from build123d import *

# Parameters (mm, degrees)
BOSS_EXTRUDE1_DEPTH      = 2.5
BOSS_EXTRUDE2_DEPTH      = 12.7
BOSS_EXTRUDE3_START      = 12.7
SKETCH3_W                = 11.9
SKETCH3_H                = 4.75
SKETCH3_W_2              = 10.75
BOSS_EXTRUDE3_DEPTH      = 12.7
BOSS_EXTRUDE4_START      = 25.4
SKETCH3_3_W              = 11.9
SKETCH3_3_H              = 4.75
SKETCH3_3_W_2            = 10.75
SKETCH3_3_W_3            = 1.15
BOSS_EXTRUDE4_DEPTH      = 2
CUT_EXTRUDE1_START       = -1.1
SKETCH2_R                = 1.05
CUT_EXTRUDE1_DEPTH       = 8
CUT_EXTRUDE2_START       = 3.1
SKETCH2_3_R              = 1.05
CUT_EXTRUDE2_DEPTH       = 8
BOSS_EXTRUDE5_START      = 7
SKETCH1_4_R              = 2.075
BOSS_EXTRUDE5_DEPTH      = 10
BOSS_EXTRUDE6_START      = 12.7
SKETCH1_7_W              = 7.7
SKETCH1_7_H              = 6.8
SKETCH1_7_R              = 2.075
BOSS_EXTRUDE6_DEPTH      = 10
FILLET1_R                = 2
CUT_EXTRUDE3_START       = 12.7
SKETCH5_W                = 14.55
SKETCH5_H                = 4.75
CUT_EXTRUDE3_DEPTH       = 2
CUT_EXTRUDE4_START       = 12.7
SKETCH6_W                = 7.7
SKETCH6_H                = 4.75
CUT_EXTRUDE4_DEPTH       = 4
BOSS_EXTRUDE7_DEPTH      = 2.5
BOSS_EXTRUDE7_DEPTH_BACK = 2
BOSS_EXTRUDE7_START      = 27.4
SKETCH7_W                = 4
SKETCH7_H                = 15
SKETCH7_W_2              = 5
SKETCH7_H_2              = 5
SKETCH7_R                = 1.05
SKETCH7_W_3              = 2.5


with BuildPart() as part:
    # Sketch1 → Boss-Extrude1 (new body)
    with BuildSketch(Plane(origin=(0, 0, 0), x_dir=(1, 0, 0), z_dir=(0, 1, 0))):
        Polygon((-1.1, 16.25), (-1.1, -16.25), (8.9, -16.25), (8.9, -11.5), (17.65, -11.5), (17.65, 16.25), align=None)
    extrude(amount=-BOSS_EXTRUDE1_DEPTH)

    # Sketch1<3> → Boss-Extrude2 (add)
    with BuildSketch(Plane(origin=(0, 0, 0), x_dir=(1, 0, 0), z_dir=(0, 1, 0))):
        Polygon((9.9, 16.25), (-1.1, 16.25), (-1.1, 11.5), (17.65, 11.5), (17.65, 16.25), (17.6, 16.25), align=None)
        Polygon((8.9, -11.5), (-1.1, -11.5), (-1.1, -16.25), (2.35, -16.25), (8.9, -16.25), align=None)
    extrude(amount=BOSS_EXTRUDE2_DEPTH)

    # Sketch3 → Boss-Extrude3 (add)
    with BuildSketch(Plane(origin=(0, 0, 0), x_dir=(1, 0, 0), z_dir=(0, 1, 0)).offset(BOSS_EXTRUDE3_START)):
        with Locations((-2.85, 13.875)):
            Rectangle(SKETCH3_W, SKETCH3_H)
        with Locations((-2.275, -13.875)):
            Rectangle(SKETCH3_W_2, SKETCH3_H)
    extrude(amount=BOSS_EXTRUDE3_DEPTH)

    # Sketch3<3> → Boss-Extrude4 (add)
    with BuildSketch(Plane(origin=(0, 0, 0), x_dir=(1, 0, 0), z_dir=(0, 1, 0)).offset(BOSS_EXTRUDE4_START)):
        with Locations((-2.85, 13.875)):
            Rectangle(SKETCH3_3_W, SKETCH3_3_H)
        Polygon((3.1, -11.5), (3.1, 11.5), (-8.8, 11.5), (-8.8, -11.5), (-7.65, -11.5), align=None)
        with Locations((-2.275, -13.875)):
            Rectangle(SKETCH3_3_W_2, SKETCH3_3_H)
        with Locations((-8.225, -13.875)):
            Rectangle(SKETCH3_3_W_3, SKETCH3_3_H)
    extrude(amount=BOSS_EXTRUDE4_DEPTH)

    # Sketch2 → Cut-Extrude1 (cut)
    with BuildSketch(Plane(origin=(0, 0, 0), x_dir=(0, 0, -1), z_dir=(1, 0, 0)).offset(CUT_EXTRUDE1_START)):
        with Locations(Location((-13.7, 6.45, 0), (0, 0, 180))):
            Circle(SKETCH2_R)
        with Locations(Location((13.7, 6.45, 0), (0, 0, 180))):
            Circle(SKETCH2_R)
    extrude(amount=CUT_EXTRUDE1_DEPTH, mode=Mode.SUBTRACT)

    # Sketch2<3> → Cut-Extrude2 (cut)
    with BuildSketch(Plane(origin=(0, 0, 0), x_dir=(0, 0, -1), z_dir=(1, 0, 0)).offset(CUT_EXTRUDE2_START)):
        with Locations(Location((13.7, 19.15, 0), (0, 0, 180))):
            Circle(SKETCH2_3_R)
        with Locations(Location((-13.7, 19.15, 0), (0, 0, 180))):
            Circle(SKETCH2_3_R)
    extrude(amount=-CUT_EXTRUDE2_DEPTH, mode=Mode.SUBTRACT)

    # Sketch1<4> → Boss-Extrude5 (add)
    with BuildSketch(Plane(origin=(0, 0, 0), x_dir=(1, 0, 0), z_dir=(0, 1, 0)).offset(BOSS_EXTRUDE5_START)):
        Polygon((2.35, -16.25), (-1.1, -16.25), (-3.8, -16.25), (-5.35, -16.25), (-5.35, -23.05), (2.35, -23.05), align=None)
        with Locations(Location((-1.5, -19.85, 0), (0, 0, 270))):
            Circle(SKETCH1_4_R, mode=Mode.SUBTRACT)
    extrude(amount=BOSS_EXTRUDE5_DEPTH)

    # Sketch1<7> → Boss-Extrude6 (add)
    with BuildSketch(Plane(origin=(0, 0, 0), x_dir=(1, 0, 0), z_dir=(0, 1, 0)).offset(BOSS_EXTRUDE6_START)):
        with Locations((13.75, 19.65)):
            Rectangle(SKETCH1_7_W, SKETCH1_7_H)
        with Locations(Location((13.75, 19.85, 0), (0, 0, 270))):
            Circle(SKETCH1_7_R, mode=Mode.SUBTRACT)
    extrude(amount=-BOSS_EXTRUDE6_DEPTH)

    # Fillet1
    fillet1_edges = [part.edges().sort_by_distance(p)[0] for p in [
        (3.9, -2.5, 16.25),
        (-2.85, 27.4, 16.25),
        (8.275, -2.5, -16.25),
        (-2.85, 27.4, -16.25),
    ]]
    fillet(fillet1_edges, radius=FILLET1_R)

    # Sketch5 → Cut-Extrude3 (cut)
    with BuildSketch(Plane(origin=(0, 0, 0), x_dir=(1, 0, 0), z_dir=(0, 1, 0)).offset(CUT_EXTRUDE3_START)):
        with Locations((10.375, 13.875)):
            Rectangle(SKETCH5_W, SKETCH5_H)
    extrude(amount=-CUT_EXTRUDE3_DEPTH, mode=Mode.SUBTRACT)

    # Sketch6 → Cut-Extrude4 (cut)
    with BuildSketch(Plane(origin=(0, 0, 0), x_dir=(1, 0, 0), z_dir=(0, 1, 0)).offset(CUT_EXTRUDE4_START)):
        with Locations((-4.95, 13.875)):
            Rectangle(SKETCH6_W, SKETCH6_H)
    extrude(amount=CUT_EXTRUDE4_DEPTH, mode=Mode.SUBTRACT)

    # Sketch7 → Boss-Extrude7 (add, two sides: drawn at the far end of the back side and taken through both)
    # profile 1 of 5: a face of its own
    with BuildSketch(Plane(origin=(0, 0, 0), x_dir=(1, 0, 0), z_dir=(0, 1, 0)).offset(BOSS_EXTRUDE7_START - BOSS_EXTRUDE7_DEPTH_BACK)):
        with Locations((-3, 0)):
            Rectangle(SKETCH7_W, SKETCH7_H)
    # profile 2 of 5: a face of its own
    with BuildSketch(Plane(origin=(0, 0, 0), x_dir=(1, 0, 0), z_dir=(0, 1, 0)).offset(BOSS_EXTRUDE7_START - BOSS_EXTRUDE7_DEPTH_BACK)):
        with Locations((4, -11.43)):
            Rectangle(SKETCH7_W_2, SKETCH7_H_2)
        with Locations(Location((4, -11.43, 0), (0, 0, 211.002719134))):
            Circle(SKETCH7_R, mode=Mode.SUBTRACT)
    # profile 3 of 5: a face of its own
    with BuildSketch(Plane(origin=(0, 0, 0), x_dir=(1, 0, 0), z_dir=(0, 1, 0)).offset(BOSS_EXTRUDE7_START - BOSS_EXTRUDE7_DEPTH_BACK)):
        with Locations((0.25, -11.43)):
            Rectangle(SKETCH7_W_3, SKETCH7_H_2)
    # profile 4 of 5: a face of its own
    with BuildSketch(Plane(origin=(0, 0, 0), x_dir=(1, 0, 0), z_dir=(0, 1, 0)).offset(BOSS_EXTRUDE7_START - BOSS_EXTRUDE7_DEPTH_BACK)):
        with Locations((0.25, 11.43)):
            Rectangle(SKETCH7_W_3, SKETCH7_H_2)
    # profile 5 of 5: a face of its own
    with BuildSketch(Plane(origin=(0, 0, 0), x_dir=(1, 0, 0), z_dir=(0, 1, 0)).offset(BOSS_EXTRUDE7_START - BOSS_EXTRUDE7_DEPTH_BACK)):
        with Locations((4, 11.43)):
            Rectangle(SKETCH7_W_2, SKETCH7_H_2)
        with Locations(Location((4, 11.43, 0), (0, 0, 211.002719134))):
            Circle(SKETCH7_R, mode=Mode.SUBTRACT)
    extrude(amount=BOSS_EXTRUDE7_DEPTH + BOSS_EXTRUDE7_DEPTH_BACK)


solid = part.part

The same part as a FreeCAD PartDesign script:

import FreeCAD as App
import Part
import Sketcher


def edges_at(feature, points):
    """Names of the edges that pass closest to the given points."""
    edges = feature.Shape.Edges
    near = lambda p: min(range(len(edges)), key=lambda i: edges[i].distToShape(Part.Vertex(*p))[0])
    return sorted({f"Edge{near(p) + 1}" for p in points})

doc = App.newDocument("Part")
params = doc.addObject("Spreadsheet::Sheet", "Params")
for row, (alias, value) in enumerate([
    ("sketch1_width", "10 mm"),
    ("sketch1_height", "32.5 mm"),
    ("sketch1_width2", "8.75 mm"),
    ("sketch1_height2", "4.75 mm"),
    ("pad1_length", "2.5 mm"),
    ("sketch2_width", "10 mm"),
    ("sketch2_width2", "18.75 mm"),
    ("sketch2_height", "4.75 mm"),
    ("pad2_length", "12.7 mm"),
    ("sketch3_width", "11.9 mm"),
    ("sketch3_width2", "10.75 mm"),
    ("sketch3_height", "4.75 mm"),
    ("pad3_length", "12.7 mm"),
    ("sketch4_width", "11.9 mm"),
    ("sketch4_height", "32.5 mm"),
    ("pad4_length", "2 mm"),
    ("sketch5_diameter", "2.1 mm"),
    ("pocket1_length", "8 mm"),
    ("sketch6_diameter", "2.1 mm"),
    ("pocket2_length", "8 mm"),
    ("sketch7_diameter", "4.15 mm"),
    ("sketch7_width", "7.7 mm"),
    ("sketch7_height", "6.8 mm"),
    ("pad5_length", "10 mm"),
    ("sketch8_diameter", "4.15 mm"),
    ("sketch8_width", "7.7 mm"),
    ("sketch8_height", "6.8 mm"),
    ("pad6_length", "10 mm"),
    ("fillet_radius", "2 mm"),
    ("sketch9_width", "14.55 mm"),
    ("sketch9_height", "4.75 mm"),
    ("pocket3_length", "2 mm"),
    ("sketch10_width", "7.7 mm"),
    ("sketch10_height", "4.75 mm"),
    ("pocket4_length", "4 mm"),
    ("sketch11_diameter", "2.1 mm"),
    ("sketch11_width", "4 mm"),
    ("sketch11_height", "15 mm"),
    ("sketch11_height2", "5 mm"),
    ("sketch11_width2", "7.5 mm"),
    ("pad7_length", "2.5 mm"),
    ("pad7_length2", "2 mm"),
], start=1):
    params.set(f"A{row}", alias)
    params.set(f"B{row}", "=" + value)
    params.setAlias(f"B{row}", alias)

body = doc.addObject("PartDesign::Body", "Body")

# Sketch on XZ plane
sketch1 = doc.addObject("Sketcher::SketchObject", "Sketch")
body.addObject(sketch1)
sketch1.AttachmentSupport = (doc.XZ_Plane, [""])
sketch1.MapMode = "FlatFace"
sketch1.addGeometry([
    Part.LineSegment(App.Vector(-1.1, -16.25, 0), App.Vector(-1.1, 16.25, 0)),  # 0
    Part.LineSegment(App.Vector(-1.1, 16.25, 0), App.Vector(8.9, 16.25, 0)),  # 1
    Part.LineSegment(App.Vector(8.9, 16.25, 0), App.Vector(8.9, 11.5, 0)),  # 2
    Part.LineSegment(App.Vector(8.9, 11.5, 0), App.Vector(17.65, 11.5, 0)),  # 3
    Part.LineSegment(App.Vector(17.65, 11.5, 0), App.Vector(17.65, -16.25, 0)),  # 4
    Part.LineSegment(App.Vector(17.65, -16.25, 0), App.Vector(-1.1, -16.25, 0)),  # 5
], False)
sketch1.addConstraint([
    Sketcher.Constraint("Coincident", 0, 2, 1, 1),
    Sketcher.Constraint("Coincident", 1, 2, 2, 1),
    Sketcher.Constraint("Coincident", 2, 2, 3, 1),
    Sketcher.Constraint("Coincident", 3, 2, 4, 1),
    Sketcher.Constraint("Coincident", 4, 2, 5, 1),
    Sketcher.Constraint("Coincident", 5, 2, 0, 1),
    Sketcher.Constraint("Vertical", 0),
    Sketcher.Constraint("Horizontal", 1),
    Sketcher.Constraint("Vertical", 2),
    Sketcher.Constraint("Horizontal", 3),
    Sketcher.Constraint("Vertical", 4),
    Sketcher.Constraint("Horizontal", 5),
    Sketcher.Constraint("DistanceX", 1, 1, 1, 2, 10.0),
    Sketcher.Constraint("DistanceY", 0, 1, 0, 2, 32.5),
    Sketcher.Constraint("DistanceX", 3, 1, 3, 2, 8.75),
    Sketcher.Constraint("DistanceY", 2, 2, 2, 1, 4.75),
    Sketcher.Constraint("DistanceX", 0, 2, -1, 1, 1.1),
    Sketcher.Constraint("DistanceY", -1, 1, 2, 2, 11.5),
])
sketch1.setExpression("Constraints[12]", "Params.sketch1_width")
sketch1.setExpression("Constraints[13]", "Params.sketch1_height")
sketch1.setExpression("Constraints[14]", "Params.sketch1_width2")
sketch1.setExpression("Constraints[15]", "Params.sketch1_height2")
pad1 = doc.addObject("PartDesign::Pad", "Pad")
body.addObject(pad1)
pad1.Profile = sketch1
pad1.setExpression("Length", "Params.pad1_length")

# Sketch on XZ plane
sketch2 = doc.addObject("Sketcher::SketchObject", "Sketch001")
body.addObject(sketch2)
sketch2.AttachmentSupport = (doc.XZ_Plane, [""])
sketch2.MapMode = "FlatFace"
sketch2.addGeometry([
    Part.LineSegment(App.Vector(-1.1, -16.25, 0), App.Vector(-1.1, -11.5, 0)),  # 0
    Part.LineSegment(App.Vector(-1.1, -11.5, 0), App.Vector(17.65, -11.5, 0)),  # 1
    Part.LineSegment(App.Vector(17.65, -11.5, 0), App.Vector(17.65, -16.25, 0)),  # 2
    Part.LineSegment(App.Vector(17.65, -16.25, 0), App.Vector(-1.1, -16.25, 0)),  # 3
    Part.LineSegment(App.Vector(8.9, 11.5, 0), App.Vector(-1.1, 11.5, 0)),  # 4
    Part.LineSegment(App.Vector(-1.1, 11.5, 0), App.Vector(-1.1, 16.25, 0)),  # 5
    Part.LineSegment(App.Vector(-1.1, 16.25, 0), App.Vector(8.9, 16.25, 0)),  # 6
    Part.LineSegment(App.Vector(8.9, 16.25, 0), App.Vector(8.9, 11.5, 0)),  # 7
], False)
sketch2.addConstraint([
    Sketcher.Constraint("Coincident", 0, 2, 1, 1),
    Sketcher.Constraint("Coincident", 1, 2, 2, 1),
    Sketcher.Constraint("Coincident", 2, 2, 3, 1),
    Sketcher.Constraint("Coincident", 3, 2, 0, 1),
    Sketcher.Constraint("Coincident", 4, 2, 5, 1),
    Sketcher.Constraint("Coincident", 5, 2, 6, 1),
    Sketcher.Constraint("Coincident", 6, 2, 7, 1),
    Sketcher.Constraint("Coincident", 7, 2, 4, 1),
    Sketcher.Constraint("Vertical", 0),
    Sketcher.Constraint("Horizontal", 1),
    Sketcher.Constraint("Vertical", 2),
    Sketcher.Constraint("Horizontal", 3),
    Sketcher.Constraint("Horizontal", 4),
    Sketcher.Constraint("Vertical", 5),
    Sketcher.Constraint("Horizontal", 6),
    Sketcher.Constraint("Vertical", 7),
    Sketcher.Constraint("Symmetric", 0, 2, 4, 2, -1),
    Sketcher.Constraint("Equal", 2, 5),
    Sketcher.Constraint("DistanceX", 4, 2, 4, 1, 10.0),
    Sketcher.Constraint("DistanceY", 0, 2, 4, 2, 23.0),
    Sketcher.Constraint("DistanceX", 1, 1, 1, 2, 18.75),
    Sketcher.Constraint("DistanceY", 0, 1, 0, 2, 4.75),
    Sketcher.Constraint("DistanceX", 0, 2, -1, 1, 1.1),
])
sketch2.setExpression("Constraints[18]", "Params.sketch2_width")
sketch2.setExpression("Constraints[20]", "Params.sketch2_width2")
sketch2.setExpression("Constraints[21]", "Params.sketch2_height")
pad2 = doc.addObject("PartDesign::Pad", "Pad001")
body.addObject(pad2)
pad2.Profile = sketch2
pad2.setExpression("Length", "Params.pad2_length")
pad2.Reversed = True

# Sketch on XZ plane
sketch3 = doc.addObject("Sketcher::SketchObject", "Sketch002")
body.addObject(sketch3)
sketch3.AttachmentSupport = (doc.XZ_Plane, [""])
sketch3.MapMode = "FlatFace"
sketch3.AttachmentOffset = App.Placement(App.Vector(0, 0, -12.7), App.Rotation())
sketch3.addGeometry([
    Part.LineSegment(App.Vector(-8.8, -16.25, 0), App.Vector(-8.8, -11.5, 0)),  # 0
    Part.LineSegment(App.Vector(-8.8, -11.5, 0), App.Vector(3.1, -11.5, 0)),  # 1
    Part.LineSegment(App.Vector(3.1, -11.5, 0), App.Vector(3.1, -16.25, 0)),  # 2
    Part.LineSegment(App.Vector(3.1, -16.25, 0), App.Vector(-8.8, -16.25, 0)),  # 3
    Part.LineSegment(App.Vector(-7.65, 11.5, 0), App.Vector(-7.65, 16.25, 0)),  # 4
    Part.LineSegment(App.Vector(-7.65, 16.25, 0), App.Vector(3.1, 16.25, 0)),  # 5
    Part.LineSegment(App.Vector(3.1, 16.25, 0), App.Vector(3.1, 11.5, 0)),  # 6
    Part.LineSegment(App.Vector(3.1, 11.5, 0), App.Vector(-7.65, 11.5, 0)),  # 7
], False)
sketch3.addConstraint([
    Sketcher.Constraint("Coincident", 0, 2, 1, 1),
    Sketcher.Constraint("Coincident", 1, 2, 2, 1),
    Sketcher.Constraint("Coincident", 2, 2, 3, 1),
    Sketcher.Constraint("Coincident", 3, 2, 0, 1),
    Sketcher.Constraint("Coincident", 4, 2, 5, 1),
    Sketcher.Constraint("Coincident", 5, 2, 6, 1),
    Sketcher.Constraint("Coincident", 6, 2, 7, 1),
    Sketcher.Constraint("Coincident", 7, 2, 4, 1),
    Sketcher.Constraint("Vertical", 0),
    Sketcher.Constraint("Horizontal", 1),
    Sketcher.Constraint("Vertical", 2),
    Sketcher.Constraint("Horizontal", 3),
    Sketcher.Constraint("Vertical", 4),
    Sketcher.Constraint("Horizontal", 5),
    Sketcher.Constraint("Vertical", 6),
    Sketcher.Constraint("Horizontal", 7),
    Sketcher.Constraint("Symmetric", 2, 2, 5, 2, -1),
    Sketcher.Constraint("Equal", 2, 4),
    Sketcher.Constraint("DistanceX", 1, 1, 1, 2, 11.9),
    Sketcher.Constraint("DistanceY", 1, 2, 6, 2, 23.0),
    Sketcher.Constraint("DistanceX", 5, 1, 5, 2, 10.75),
    Sketcher.Constraint("DistanceY", 0, 1, 0, 2, 4.75),
    Sketcher.Constraint("DistanceX", 0, 2, -1, 1, 8.8),
])
sketch3.setExpression("Constraints[18]", "Params.sketch3_width")
sketch3.setExpression("Constraints[20]", "Params.sketch3_width2")
sketch3.setExpression("Constraints[21]", "Params.sketch3_height")
pad3 = doc.addObject("PartDesign::Pad", "Pad002")
body.addObject(pad3)
pad3.Profile = sketch3
pad3.setExpression("Length", "Params.pad3_length")
pad3.Reversed = True

# Sketch on XZ plane
sketch4 = doc.addObject("Sketcher::SketchObject", "Sketch003")
body.addObject(sketch4)
sketch4.AttachmentSupport = (doc.XZ_Plane, [""])
sketch4.MapMode = "FlatFace"
sketch4.AttachmentOffset = App.Placement(App.Vector(0, 0, -25.4), App.Rotation())
sketch4.addGeometry([
    Part.LineSegment(App.Vector(-8.8, -16.25, 0), App.Vector(-8.8, 16.25, 0)),
    Part.LineSegment(App.Vector(-8.8, 16.25, 0), App.Vector(3.1, 16.25, 0)),
    Part.LineSegment(App.Vector(3.1, 16.25, 0), App.Vector(3.1, -16.25, 0)),
    Part.LineSegment(App.Vector(3.1, -16.25, 0), App.Vector(-8.8, -16.25, 0)),
], False)
sketch4.addConstraint([
    Sketcher.Constraint("Coincident", 0, 2, 1, 1),
    Sketcher.Constraint("Coincident", 1, 2, 2, 1),
    Sketcher.Constraint("Coincident", 2, 2, 3, 1),
    Sketcher.Constraint("Coincident", 3, 2, 0, 1),
    Sketcher.Constraint("Vertical", 0),
    Sketcher.Constraint("Horizontal", 1),
    Sketcher.Constraint("Vertical", 2),
    Sketcher.Constraint("Horizontal", 3),
    Sketcher.Constraint("DistanceX", 1, 1, 1, 2, 11.9),
    Sketcher.Constraint("DistanceY", 0, 1, 0, 2, 32.5),
    Sketcher.Constraint("DistanceX", 0, 2, -1, 1, 8.8),
    Sketcher.Constraint("DistanceY", -1, 1, 0, 2, 16.25),
])
sketch4.setExpression("Constraints[8]", "Params.sketch4_width")
sketch4.setExpression("Constraints[9]", "Params.sketch4_height")
pad4 = doc.addObject("PartDesign::Pad", "Pad003")
body.addObject(pad4)
pad4.Profile = sketch4
pad4.setExpression("Length", "Params.pad4_length")
pad4.Reversed = True

# Sketch on YZ plane
sketch5 = doc.addObject("Sketcher::SketchObject", "Sketch004")
body.addObject(sketch5)
sketch5.AttachmentSupport = (doc.YZ_Plane, [""])
sketch5.MapMode = "FlatFace"
sketch5.AttachmentOffset = App.Placement(App.Vector(0, 0, -1.1), App.Rotation())
sketch5.addGeometry([
    Part.Circle(App.Vector(6.45, 13.7, 0), App.Vector(0, 0, 1), 1.05),
    Part.Circle(App.Vector(6.45, -13.7, 0), App.Vector(0, 0, 1), 1.05),
], False)
sketch5.addConstraint([
    Sketcher.Constraint("Equal", 0, 1),
    Sketcher.Constraint("Symmetric", 0, 3, 1, 3, -1),
    Sketcher.Constraint("Diameter", 0, 2.1),
    Sketcher.Constraint("DistanceY", -1, 1, 0, 3, 13.7),
    Sketcher.Constraint("DistanceX", -1, 1, 0, 3, 6.45),
])
sketch5.setExpression("Constraints[2]", "Params.sketch5_diameter")
pocket1 = doc.addObject("PartDesign::Pocket", "Pocket")
body.addObject(pocket1)
pocket1.Profile = sketch5
pocket1.setExpression("Length", "Params.pocket1_length")
pocket1.Reversed = True

# Sketch on YZ plane
sketch6 = doc.addObject("Sketcher::SketchObject", "Sketch005")
body.addObject(sketch6)
sketch6.AttachmentSupport = (doc.YZ_Plane, [""])
sketch6.MapMode = "FlatFace"
sketch6.AttachmentOffset = App.Placement(App.Vector(0, 0, 3.1), App.Rotation())
sketch6.addGeometry([
    Part.Circle(App.Vector(19.15, -13.7, 0), App.Vector(0, 0, 1), 1.05),
    Part.Circle(App.Vector(19.15, 13.7, 0), App.Vector(0, 0, 1), 1.05),
], False)
sketch6.addConstraint([
    Sketcher.Constraint("Equal", 0, 1),
    Sketcher.Constraint("Symmetric", 0, 3, 1, 3, -1),
    Sketcher.Constraint("Diameter", 0, 2.1),
    Sketcher.Constraint("DistanceY", 0, 3, -1, 1, 13.7),
    Sketcher.Constraint("DistanceX", -1, 1, 0, 3, 19.15),
])
sketch6.setExpression("Constraints[2]", "Params.sketch6_diameter")
pocket2 = doc.addObject("PartDesign::Pocket", "Pocket001")
body.addObject(pocket2)
pocket2.Profile = sketch6
pocket2.setExpression("Length", "Params.pocket2_length")

# Sketch on XZ plane
sketch7 = doc.addObject("Sketcher::SketchObject", "Sketch006")
body.addObject(sketch7)
sketch7.AttachmentSupport = (doc.XZ_Plane, [""])
sketch7.MapMode = "FlatFace"
sketch7.AttachmentOffset = App.Placement(App.Vector(0, 0, -7), App.Rotation())
sketch7.addGeometry([
    Part.LineSegment(App.Vector(2.35, 16.25, 0), App.Vector(-5.35, 16.25, 0)),  # 0
    Part.LineSegment(App.Vector(-5.35, 16.25, 0), App.Vector(-5.35, 23.05, 0)),  # 1
    Part.LineSegment(App.Vector(-5.35, 23.05, 0), App.Vector(2.35, 23.05, 0)),  # 2
    Part.LineSegment(App.Vector(2.35, 23.05, 0), App.Vector(2.35, 16.25, 0)),  # 3
    Part.Circle(App.Vector(-1.5, 19.85, 0), App.Vector(0, 0, 1), 2.075),  # 4
], False)
sketch7.addConstraint([
    Sketcher.Constraint("Coincident", 0, 2, 1, 1),
    Sketcher.Constraint("Coincident", 1, 2, 2, 1),
    Sketcher.Constraint("Coincident", 2, 2, 3, 1),
    Sketcher.Constraint("Coincident", 3, 2, 0, 1),
    Sketcher.Constraint("Horizontal", 0),
    Sketcher.Constraint("Vertical", 1),
    Sketcher.Constraint("Horizontal", 2),
    Sketcher.Constraint("Vertical", 3),
    Sketcher.Constraint("Diameter", 4, 4.15),
    Sketcher.Constraint("DistanceX", 0, 2, 0, 1, 7.7),
    Sketcher.Constraint("DistanceY", 1, 1, 1, 2, 6.8),
    Sketcher.Constraint("DistanceX", 4, 3, -1, 1, 1.5),
    Sketcher.Constraint("DistanceY", 0, 2, 4, 3, 3.6),
    Sketcher.Constraint("DistanceY", -1, 1, 4, 3, 19.85),
    Sketcher.Constraint("DistanceX", 0, 2, -1, 1, 5.35),
])
sketch7.setExpression("Constraints[8]", "Params.sketch7_diameter")
sketch7.setExpression("Constraints[9]", "Params.sketch7_width")
sketch7.setExpression("Constraints[10]", "Params.sketch7_height")
pad5 = doc.addObject("PartDesign::Pad", "Pad004")
body.addObject(pad5)
pad5.Profile = sketch7
pad5.setExpression("Length", "Params.pad5_length")
pad5.Reversed = True

# Sketch on XZ plane
sketch8 = doc.addObject("Sketcher::SketchObject", "Sketch007")
body.addObject(sketch8)
sketch8.AttachmentSupport = (doc.XZ_Plane, [""])
sketch8.MapMode = "FlatFace"
sketch8.AttachmentOffset = App.Placement(App.Vector(0, 0, -12.7), App.Rotation())
sketch8.addGeometry([
    Part.LineSegment(App.Vector(9.9, -23.05, 0), App.Vector(9.9, -16.25, 0)),  # 0
    Part.LineSegment(App.Vector(9.9, -16.25, 0), App.Vector(17.6, -16.25, 0)),  # 1
    Part.LineSegment(App.Vector(17.6, -16.25, 0), App.Vector(17.6, -23.05, 0)),  # 2
    Part.LineSegment(App.Vector(17.6, -23.05, 0), App.Vector(9.9, -23.05, 0)),  # 3
    Part.Circle(App.Vector(13.75, -19.85, 0), App.Vector(0, 0, 1), 2.075),  # 4
], False)
sketch8.addConstraint([
    Sketcher.Constraint("Coincident", 0, 2, 1, 1),
    Sketcher.Constraint("Coincident", 1, 2, 2, 1),
    Sketcher.Constraint("Coincident", 2, 2, 3, 1),
    Sketcher.Constraint("Coincident", 3, 2, 0, 1),
    Sketcher.Constraint("Vertical", 0),
    Sketcher.Constraint("Horizontal", 1),
    Sketcher.Constraint("Vertical", 2),
    Sketcher.Constraint("Horizontal", 3),
    Sketcher.Constraint("Diameter", 4, 4.15),
    Sketcher.Constraint("DistanceX", 1, 1, 1, 2, 7.7),
    Sketcher.Constraint("DistanceY", 0, 1, 0, 2, 6.8),
    Sketcher.Constraint("DistanceX", -1, 1, 0, 2, 9.9),
    Sketcher.Constraint("DistanceY", 4, 3, 0, 2, 3.6),
    Sketcher.Constraint("DistanceX", -1, 1, 4, 3, 13.75),
    Sketcher.Constraint("DistanceY", 4, 3, -1, 1, 19.85),
])
sketch8.setExpression("Constraints[8]", "Params.sketch8_diameter")
sketch8.setExpression("Constraints[9]", "Params.sketch8_width")
sketch8.setExpression("Constraints[10]", "Params.sketch8_height")
pad6 = doc.addObject("PartDesign::Pad", "Pad005")
body.addObject(pad6)
pad6.Profile = sketch8
pad6.setExpression("Length", "Params.pad6_length")
doc.recompute()

fillet = doc.addObject("PartDesign::Fillet", "Fillet")
body.addObject(fillet)
fillet.Base = (pad6, edges_at(pad6, [
    (3.9, -2.5, 16.25),
    (-2.85, 27.4, 16.25),
    (8.275, -2.5, -16.25),
    (-2.85, 27.4, -16.25),
]))
fillet.setExpression("Radius", "Params.fillet_radius")

# Sketch on XZ plane
sketch9 = doc.addObject("Sketcher::SketchObject", "Sketch008")
body.addObject(sketch9)
sketch9.AttachmentSupport = (doc.XZ_Plane, [""])
sketch9.MapMode = "FlatFace"
sketch9.AttachmentOffset = App.Placement(App.Vector(0, 0, -12.7), App.Rotation())
sketch9.addGeometry([
    Part.LineSegment(App.Vector(3.1, -16.25, 0), App.Vector(3.1, -11.5, 0)),
    Part.LineSegment(App.Vector(3.1, -11.5, 0), App.Vector(17.65, -11.5, 0)),
    Part.LineSegment(App.Vector(17.65, -11.5, 0), App.Vector(17.65, -16.25, 0)),
    Part.LineSegment(App.Vector(17.65, -16.25, 0), App.Vector(3.1, -16.25, 0)),
], False)
sketch9.addConstraint([
    Sketcher.Constraint("Coincident", 0, 2, 1, 1),
    Sketcher.Constraint("Coincident", 1, 2, 2, 1),
    Sketcher.Constraint("Coincident", 2, 2, 3, 1),
    Sketcher.Constraint("Coincident", 3, 2, 0, 1),
    Sketcher.Constraint("Vertical", 0),
    Sketcher.Constraint("Horizontal", 1),
    Sketcher.Constraint("Vertical", 2),
    Sketcher.Constraint("Horizontal", 3),
    Sketcher.Constraint("DistanceX", 1, 1, 1, 2, 14.55),
    Sketcher.Constraint("DistanceY", 0, 1, 0, 2, 4.75),
    Sketcher.Constraint("DistanceX", -1, 1, 0, 2, 3.1),
    Sketcher.Constraint("DistanceY", 0, 2, -1, 1, 11.5),
])
sketch9.setExpression("Constraints[8]", "Params.sketch9_width")
sketch9.setExpression("Constraints[9]", "Params.sketch9_height")
pocket3 = doc.addObject("PartDesign::Pocket", "Pocket002")
body.addObject(pocket3)
pocket3.Profile = sketch9
pocket3.setExpression("Length", "Params.pocket3_length")
pocket3.Reversed = True

# Sketch on XZ plane
sketch10 = doc.addObject("Sketcher::SketchObject", "Sketch009")
body.addObject(sketch10)
sketch10.AttachmentSupport = (doc.XZ_Plane, [""])
sketch10.MapMode = "FlatFace"
sketch10.AttachmentOffset = App.Placement(App.Vector(0, 0, -12.7), App.Rotation())
sketch10.addGeometry([
    Part.LineSegment(App.Vector(-8.8, -16.25, 0), App.Vector(-8.8, -11.5, 0)),
    Part.LineSegment(App.Vector(-8.8, -11.5, 0), App.Vector(-1.1, -11.5, 0)),
    Part.LineSegment(App.Vector(-1.1, -11.5, 0), App.Vector(-1.1, -16.25, 0)),
    Part.LineSegment(App.Vector(-1.1, -16.25, 0), App.Vector(-8.8, -16.25, 0)),
], False)
sketch10.addConstraint([
    Sketcher.Constraint("Coincident", 0, 2, 1, 1),
    Sketcher.Constraint("Coincident", 1, 2, 2, 1),
    Sketcher.Constraint("Coincident", 2, 2, 3, 1),
    Sketcher.Constraint("Coincident", 3, 2, 0, 1),
    Sketcher.Constraint("Vertical", 0),
    Sketcher.Constraint("Horizontal", 1),
    Sketcher.Constraint("Vertical", 2),
    Sketcher.Constraint("Horizontal", 3),
    Sketcher.Constraint("DistanceX", 1, 1, 1, 2, 7.7),
    Sketcher.Constraint("DistanceY", 0, 1, 0, 2, 4.75),
    Sketcher.Constraint("DistanceX", 0, 2, -1, 1, 8.8),
    Sketcher.Constraint("DistanceY", 0, 2, -1, 1, 11.5),
])
sketch10.setExpression("Constraints[8]", "Params.sketch10_width")
sketch10.setExpression("Constraints[9]", "Params.sketch10_height")
pocket4 = doc.addObject("PartDesign::Pocket", "Pocket003")
body.addObject(pocket4)
pocket4.Profile = sketch10
pocket4.setExpression("Length", "Params.pocket4_length")

# Sketch on XZ plane
sketch11 = doc.addObject("Sketcher::SketchObject", "Sketch010")
body.addObject(sketch11)
sketch11.AttachmentSupport = (doc.XZ_Plane, [""])
sketch11.MapMode = "FlatFace"
sketch11.AttachmentOffset = App.Placement(App.Vector(0, 0, -27.4), App.Rotation())
sketch11.addGeometry([
    Part.LineSegment(App.Vector(-5, -7.5, 0), App.Vector(-5, 7.5, 0)),  # 0
    Part.LineSegment(App.Vector(-5, 7.5, 0), App.Vector(-1, 7.5, 0)),  # 1
    Part.LineSegment(App.Vector(-1, 7.5, 0), App.Vector(-1, -7.5, 0)),  # 2
    Part.LineSegment(App.Vector(-1, -7.5, 0), App.Vector(-5, -7.5, 0)),  # 3
    Part.LineSegment(App.Vector(6.5, 13.93, 0), App.Vector(6.5, 8.93, 0)),  # 4
    Part.LineSegment(App.Vector(6.5, 8.93, 0), App.Vector(-1, 8.93, 0)),  # 5
    Part.LineSegment(App.Vector(-1, 8.93, 0), App.Vector(-1, 13.93, 0)),  # 6
    Part.LineSegment(App.Vector(-1, 13.93, 0), App.Vector(6.5, 13.93, 0)),  # 7
    Part.Circle(App.Vector(4, 11.43, 0), App.Vector(0, 0, 1), 1.05),  # 8
    Part.LineSegment(App.Vector(-1, -13.93, 0), App.Vector(-1, -8.93, 0)),  # 9
    Part.LineSegment(App.Vector(-1, -8.93, 0), App.Vector(6.5, -8.93, 0)),  # 10
    Part.LineSegment(App.Vector(6.5, -8.93, 0), App.Vector(6.5, -13.93, 0)),  # 11
    Part.LineSegment(App.Vector(6.5, -13.93, 0), App.Vector(-1, -13.93, 0)),  # 12
    Part.Circle(App.Vector(4, -11.43, 0), App.Vector(0, 0, 1), 1.05),  # 13
], False)
sketch11.addConstraint([
    Sketcher.Constraint("Coincident", 0, 2, 1, 1),
    Sketcher.Constraint("Coincident", 1, 2, 2, 1),
    Sketcher.Constraint("Coincident", 2, 2, 3, 1),
    Sketcher.Constraint("Coincident", 3, 2, 0, 1),
    Sketcher.Constraint("Coincident", 4, 2, 5, 1),
    Sketcher.Constraint("Coincident", 5, 2, 6, 1),
    Sketcher.Constraint("Coincident", 6, 2, 7, 1),
    Sketcher.Constraint("Coincident", 7, 2, 4, 1),
    Sketcher.Constraint("Coincident", 9, 2, 10, 1),
    Sketcher.Constraint("Coincident", 10, 2, 11, 1),
    Sketcher.Constraint("Coincident", 11, 2, 12, 1),
    Sketcher.Constraint("Coincident", 12, 2, 9, 1),
    Sketcher.Constraint("Vertical", 0),
    Sketcher.Constraint("Horizontal", 1),
    Sketcher.Constraint("Vertical", 2),
    Sketcher.Constraint("Horizontal", 3),
    Sketcher.Constraint("Vertical", 4),
    Sketcher.Constraint("Horizontal", 5),
    Sketcher.Constraint("Vertical", 6),
    Sketcher.Constraint("Horizontal", 7),
    Sketcher.Constraint("Vertical", 9),
    Sketcher.Constraint("Horizontal", 10),
    Sketcher.Constraint("Vertical", 11),
    Sketcher.Constraint("Horizontal", 12),
    Sketcher.Constraint("Equal", 8, 13),
    Sketcher.Constraint("Symmetric", 8, 3, 13, 3, -1),
    Sketcher.Constraint("Symmetric", 5, 2, 9, 2, -1),
    Sketcher.Constraint("Symmetric", 7, 2, 11, 2, -1),
    Sketcher.Constraint("Vertical", 2, 2, 5, 2),
    Sketcher.Constraint("Diameter", 8, 2.1),
    Sketcher.Constraint("DistanceX", 1, 1, 1, 2, 4.0),
    Sketcher.Constraint("DistanceY", 0, 1, 0, 2, 15.0),
    Sketcher.Constraint("DistanceY", 4, 2, 4, 1, 5.0),
    Sketcher.Constraint("DistanceX", 5, 2, 5, 1, 7.5),
    Sketcher.Constraint("DistanceX", -1, 1, 8, 3, 4.0),
    Sketcher.Constraint("DistanceX", 0, 2, -1, 1, 5.0),
    Sketcher.Constraint("DistanceY", -1, 1, 0, 2, 7.5),
    Sketcher.Constraint("DistanceY", 4, 2, 8, 3, 2.5),
    Sketcher.Constraint("DistanceY", -1, 1, 8, 3, 11.43),
])
sketch11.setExpression("Constraints[29]", "Params.sketch11_diameter")
sketch11.setExpression("Constraints[30]", "Params.sketch11_width")
sketch11.setExpression("Constraints[31]", "Params.sketch11_height")
sketch11.setExpression("Constraints[32]", "Params.sketch11_height2")
sketch11.setExpression("Constraints[33]", "Params.sketch11_width2")
pad7 = doc.addObject("PartDesign::Pad", "Pad006")
body.addObject(pad7)
pad7.Profile = sketch11
pad7.Type = "TwoLengths"
pad7.setExpression("Length", "Params.pad7_length")
pad7.setExpression("Length2", "Params.pad7_length2")
pad7.Reversed = True

doc.recompute()
